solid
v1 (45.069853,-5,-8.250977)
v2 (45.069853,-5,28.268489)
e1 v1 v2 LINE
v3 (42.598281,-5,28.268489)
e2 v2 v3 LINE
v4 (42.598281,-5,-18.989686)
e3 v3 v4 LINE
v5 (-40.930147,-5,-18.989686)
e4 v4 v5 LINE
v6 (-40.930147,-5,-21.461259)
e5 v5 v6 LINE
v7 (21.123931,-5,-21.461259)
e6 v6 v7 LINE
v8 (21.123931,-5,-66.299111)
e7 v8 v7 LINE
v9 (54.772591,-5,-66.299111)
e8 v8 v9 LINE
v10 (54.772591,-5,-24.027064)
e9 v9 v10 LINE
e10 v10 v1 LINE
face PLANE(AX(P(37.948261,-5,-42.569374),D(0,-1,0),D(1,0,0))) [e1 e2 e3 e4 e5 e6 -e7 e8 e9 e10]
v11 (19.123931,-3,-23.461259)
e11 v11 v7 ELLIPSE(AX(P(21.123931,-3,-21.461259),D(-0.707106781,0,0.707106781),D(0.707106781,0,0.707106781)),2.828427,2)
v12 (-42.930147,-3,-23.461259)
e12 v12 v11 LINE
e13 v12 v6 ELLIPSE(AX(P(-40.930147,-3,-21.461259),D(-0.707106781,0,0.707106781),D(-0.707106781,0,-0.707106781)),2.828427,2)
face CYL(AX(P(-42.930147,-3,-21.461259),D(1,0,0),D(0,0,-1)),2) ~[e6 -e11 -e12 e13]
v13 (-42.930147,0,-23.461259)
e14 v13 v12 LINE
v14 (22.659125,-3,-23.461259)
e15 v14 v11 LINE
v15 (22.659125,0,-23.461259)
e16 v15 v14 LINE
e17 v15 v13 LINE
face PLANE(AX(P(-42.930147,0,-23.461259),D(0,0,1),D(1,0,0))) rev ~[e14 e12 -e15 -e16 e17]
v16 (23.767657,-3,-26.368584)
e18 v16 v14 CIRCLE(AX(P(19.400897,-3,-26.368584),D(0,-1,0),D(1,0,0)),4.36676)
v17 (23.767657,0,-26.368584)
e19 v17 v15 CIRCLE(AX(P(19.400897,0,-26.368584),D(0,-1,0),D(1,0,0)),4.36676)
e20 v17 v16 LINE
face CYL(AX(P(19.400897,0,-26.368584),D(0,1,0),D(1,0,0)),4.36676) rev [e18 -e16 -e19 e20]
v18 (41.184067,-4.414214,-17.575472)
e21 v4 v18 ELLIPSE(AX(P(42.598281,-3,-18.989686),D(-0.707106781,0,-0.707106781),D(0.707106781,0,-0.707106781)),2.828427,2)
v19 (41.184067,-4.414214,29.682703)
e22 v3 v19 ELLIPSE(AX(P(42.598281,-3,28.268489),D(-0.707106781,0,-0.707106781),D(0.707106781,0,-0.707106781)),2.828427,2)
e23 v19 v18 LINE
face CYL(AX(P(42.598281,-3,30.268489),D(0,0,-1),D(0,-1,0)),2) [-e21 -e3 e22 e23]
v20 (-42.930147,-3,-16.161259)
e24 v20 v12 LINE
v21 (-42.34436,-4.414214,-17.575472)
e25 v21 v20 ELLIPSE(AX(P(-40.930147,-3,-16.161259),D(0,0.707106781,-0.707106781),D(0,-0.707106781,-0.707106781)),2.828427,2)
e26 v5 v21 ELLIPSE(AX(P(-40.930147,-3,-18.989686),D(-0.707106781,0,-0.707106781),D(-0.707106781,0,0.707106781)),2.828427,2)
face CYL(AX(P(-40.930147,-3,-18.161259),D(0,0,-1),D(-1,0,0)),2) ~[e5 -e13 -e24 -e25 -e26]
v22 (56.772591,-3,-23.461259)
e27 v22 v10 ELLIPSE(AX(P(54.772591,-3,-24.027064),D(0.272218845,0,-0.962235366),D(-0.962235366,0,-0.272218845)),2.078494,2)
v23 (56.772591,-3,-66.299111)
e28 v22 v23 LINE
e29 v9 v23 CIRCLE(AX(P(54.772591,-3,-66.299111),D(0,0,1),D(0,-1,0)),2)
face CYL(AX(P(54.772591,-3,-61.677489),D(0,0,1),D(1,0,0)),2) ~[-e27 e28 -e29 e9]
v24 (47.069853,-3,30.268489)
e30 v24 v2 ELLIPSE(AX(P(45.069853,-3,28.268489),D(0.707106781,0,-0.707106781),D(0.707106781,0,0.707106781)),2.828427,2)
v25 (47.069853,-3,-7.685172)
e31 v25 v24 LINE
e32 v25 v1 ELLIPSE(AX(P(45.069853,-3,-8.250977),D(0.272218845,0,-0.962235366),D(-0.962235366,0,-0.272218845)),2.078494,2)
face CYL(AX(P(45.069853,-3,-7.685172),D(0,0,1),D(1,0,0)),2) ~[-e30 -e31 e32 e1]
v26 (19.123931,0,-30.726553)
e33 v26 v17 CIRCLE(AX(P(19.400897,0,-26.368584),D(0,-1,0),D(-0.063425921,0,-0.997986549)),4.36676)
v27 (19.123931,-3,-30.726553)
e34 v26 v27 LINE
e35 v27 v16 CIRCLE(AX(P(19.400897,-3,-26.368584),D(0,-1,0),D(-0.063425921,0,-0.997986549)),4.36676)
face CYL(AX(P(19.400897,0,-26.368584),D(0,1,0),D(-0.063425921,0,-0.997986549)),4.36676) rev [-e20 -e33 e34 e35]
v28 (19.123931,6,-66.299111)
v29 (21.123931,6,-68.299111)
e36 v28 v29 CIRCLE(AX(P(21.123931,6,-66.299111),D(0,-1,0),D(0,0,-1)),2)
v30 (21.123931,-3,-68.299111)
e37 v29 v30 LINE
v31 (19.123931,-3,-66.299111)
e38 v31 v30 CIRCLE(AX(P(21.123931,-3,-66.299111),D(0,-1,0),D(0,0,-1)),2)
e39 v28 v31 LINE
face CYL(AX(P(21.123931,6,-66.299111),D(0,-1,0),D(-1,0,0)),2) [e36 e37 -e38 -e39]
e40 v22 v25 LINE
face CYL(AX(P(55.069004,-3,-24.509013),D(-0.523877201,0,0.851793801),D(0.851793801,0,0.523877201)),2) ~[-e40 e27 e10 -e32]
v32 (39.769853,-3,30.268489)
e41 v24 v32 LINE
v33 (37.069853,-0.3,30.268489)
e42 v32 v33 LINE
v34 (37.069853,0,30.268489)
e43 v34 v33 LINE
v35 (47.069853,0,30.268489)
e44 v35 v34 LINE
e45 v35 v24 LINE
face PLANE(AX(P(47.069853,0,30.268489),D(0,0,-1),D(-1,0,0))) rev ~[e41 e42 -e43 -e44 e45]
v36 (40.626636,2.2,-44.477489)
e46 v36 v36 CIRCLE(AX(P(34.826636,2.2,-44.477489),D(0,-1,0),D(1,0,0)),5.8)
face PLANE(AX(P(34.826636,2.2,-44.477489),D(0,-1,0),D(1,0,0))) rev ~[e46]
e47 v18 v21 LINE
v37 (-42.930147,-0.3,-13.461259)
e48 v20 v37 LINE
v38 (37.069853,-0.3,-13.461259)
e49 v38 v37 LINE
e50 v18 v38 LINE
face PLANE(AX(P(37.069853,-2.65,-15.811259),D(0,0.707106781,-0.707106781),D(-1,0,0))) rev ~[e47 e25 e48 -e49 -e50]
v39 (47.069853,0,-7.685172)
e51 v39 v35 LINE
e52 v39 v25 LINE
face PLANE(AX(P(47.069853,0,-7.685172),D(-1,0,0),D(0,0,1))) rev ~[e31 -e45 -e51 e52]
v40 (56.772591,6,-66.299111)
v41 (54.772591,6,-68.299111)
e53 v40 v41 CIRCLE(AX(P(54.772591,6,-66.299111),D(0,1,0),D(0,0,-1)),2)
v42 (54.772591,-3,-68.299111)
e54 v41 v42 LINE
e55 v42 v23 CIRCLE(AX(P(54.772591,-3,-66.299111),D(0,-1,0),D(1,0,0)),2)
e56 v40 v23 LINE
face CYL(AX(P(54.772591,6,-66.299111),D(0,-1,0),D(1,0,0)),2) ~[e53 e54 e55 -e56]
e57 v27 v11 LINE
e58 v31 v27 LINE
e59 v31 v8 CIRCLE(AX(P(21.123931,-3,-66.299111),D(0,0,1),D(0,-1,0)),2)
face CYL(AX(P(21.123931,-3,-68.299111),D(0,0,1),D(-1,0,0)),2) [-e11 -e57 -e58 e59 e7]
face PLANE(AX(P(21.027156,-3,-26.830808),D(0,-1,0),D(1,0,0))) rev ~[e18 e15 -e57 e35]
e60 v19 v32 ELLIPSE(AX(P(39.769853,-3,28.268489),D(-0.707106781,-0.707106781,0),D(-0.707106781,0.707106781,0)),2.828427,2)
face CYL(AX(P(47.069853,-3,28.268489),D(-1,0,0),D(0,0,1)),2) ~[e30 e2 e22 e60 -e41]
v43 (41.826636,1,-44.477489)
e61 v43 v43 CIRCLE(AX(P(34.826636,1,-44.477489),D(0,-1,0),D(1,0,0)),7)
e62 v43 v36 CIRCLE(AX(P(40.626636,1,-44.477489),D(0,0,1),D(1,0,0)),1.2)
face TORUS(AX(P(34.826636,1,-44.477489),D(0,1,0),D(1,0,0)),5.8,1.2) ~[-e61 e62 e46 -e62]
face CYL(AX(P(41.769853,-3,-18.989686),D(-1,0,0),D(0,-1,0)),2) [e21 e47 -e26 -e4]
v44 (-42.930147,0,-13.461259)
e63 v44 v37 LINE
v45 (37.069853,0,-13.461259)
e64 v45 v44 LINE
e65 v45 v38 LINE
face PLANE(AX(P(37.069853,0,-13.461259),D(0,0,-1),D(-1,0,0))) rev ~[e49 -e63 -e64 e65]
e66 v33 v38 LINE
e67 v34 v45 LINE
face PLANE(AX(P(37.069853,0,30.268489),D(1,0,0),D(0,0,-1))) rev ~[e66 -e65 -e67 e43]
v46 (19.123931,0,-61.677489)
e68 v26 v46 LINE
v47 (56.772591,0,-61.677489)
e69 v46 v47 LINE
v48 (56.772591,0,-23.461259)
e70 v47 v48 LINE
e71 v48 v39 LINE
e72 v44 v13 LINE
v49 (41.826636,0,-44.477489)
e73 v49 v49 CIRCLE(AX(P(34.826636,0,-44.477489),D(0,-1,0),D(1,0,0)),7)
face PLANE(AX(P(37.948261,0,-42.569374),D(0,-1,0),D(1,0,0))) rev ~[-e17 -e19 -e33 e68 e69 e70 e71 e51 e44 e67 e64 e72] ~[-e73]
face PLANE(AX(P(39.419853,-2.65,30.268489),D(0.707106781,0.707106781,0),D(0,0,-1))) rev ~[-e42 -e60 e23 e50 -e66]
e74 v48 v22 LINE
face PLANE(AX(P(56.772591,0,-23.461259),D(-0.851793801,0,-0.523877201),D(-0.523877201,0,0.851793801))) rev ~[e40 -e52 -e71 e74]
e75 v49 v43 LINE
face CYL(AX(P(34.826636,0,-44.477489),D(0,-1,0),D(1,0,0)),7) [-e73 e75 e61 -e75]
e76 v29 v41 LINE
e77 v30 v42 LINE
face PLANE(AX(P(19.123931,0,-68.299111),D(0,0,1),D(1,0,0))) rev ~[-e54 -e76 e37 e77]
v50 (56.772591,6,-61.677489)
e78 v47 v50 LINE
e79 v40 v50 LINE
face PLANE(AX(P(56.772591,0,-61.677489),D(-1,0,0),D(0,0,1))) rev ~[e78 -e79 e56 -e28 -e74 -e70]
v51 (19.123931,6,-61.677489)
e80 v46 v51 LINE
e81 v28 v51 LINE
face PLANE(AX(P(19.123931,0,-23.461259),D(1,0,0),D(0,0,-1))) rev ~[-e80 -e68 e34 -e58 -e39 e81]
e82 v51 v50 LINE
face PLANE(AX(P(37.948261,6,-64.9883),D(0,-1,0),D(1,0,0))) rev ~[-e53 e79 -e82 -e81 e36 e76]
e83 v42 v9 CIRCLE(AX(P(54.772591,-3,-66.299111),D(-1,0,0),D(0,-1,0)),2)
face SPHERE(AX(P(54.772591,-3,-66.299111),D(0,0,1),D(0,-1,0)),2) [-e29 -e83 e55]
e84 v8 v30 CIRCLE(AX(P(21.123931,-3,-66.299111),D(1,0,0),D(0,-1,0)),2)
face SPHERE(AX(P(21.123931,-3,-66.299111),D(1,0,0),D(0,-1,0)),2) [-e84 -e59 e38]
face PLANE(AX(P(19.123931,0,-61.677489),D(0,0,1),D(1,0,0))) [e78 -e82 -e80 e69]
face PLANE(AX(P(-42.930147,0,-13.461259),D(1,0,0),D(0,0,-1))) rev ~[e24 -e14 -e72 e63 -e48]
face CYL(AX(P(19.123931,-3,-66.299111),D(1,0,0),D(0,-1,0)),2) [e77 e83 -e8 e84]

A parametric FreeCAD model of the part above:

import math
import FreeCAD as App
import Part
import Sketcher
Q = App.Units.Quantity


def edges_at(feature, points):
    """Names of the edges that pass closest to the given points."""
    edges = feature.Shape.Edges
    near = lambda p: min(range(len(edges)), key=lambda i: edges[i].distToShape(Part.Vertex(*p))[0])
    return sorted({f"Edge{near(p) + 1}" for p in points})

doc = App.newDocument("Part")
body = doc.addObject("PartDesign::Body", "Body")

sketch1 = body.newObject("Sketcher::SketchObject", "Sketch")
sketch1.AttachmentSupport = (doc.getObject("XZ_Plane"), [""])
sketch1.MapMode = "FlatFace"
sketch1.addGeometry(Part.LineSegment(App.Vector(19, -62, 0), App.Vector(19, -68, 0)), False)
sketch1.addGeometry(Part.LineSegment(App.Vector(19, -68, 0), App.Vector(57, -68, 0)), False)
sketch1.addGeometry(Part.LineSegment(App.Vector(57, -68, 0), App.Vector(57, -62, 0)), False)
sketch1.addGeometry(Part.LineSegment(App.Vector(57, -62, 0), App.Vector(19, -62, 0)), False)
sketch1.addConstraint(Sketcher.Constraint("Coincident", 0, 2, 1, 1))
sketch1.addConstraint(Sketcher.Constraint("Coincident", 1, 2, 2, 1))
sketch1.addConstraint(Sketcher.Constraint("Coincident", 2, 2, 3, 1))
sketch1.addConstraint(Sketcher.Constraint("Coincident", 3, 2, 0, 1))
sketch1.addConstraint(Sketcher.Constraint("Vertical", 0))
sketch1.addConstraint(Sketcher.Constraint("Horizontal", 1))
sketch1.addConstraint(Sketcher.Constraint("Vertical", 2))
sketch1.addConstraint(Sketcher.Constraint("Horizontal", 3))
sketch1.addConstraint(Sketcher.Constraint("DistanceX", 1, 1, 1, 2, Q("37.648661 mm")))
sketch1.addConstraint(Sketcher.Constraint("DistanceY", 0, 2, 0, 1, Q("6.621622 mm")))
sketch1.addConstraint(Sketcher.Constraint("DistanceX", -1, 1, 0, 2, Q("19.123931 mm")))
sketch1.addConstraint(Sketcher.Constraint("DistanceY", 0, 2, -1, 1, Q("68.299111 mm")))
pad1 = body.newObject("PartDesign::Pad", "Pad")
pad1.Profile = sketch1
pad1.Type = "TwoLengths"
pad1.Length = 6
pad1.Length2 = 5
pad1.Reversed = True

sketch2 = body.newObject("Sketcher::SketchObject", "Sketch001")
sketch2.AttachmentSupport = (doc.getObject("XZ_Plane"), [""])
sketch2.MapMode = "FlatFace"
sketch2.addGeometry(Part.LineSegment(App.Vector(19, -23, 0), App.Vector(19, -62, 0)), False)
sketch2.addGeometry(Part.LineSegment(App.Vector(19, -62, 0), App.Vector(57, -62, 0)), False)
sketch2.addGeometry(Part.LineSegment(App.Vector(57, -62, 0), App.Vector(57, -23, 0)), False)
sketch2.addGeometry(Part.LineSegment(App.Vector(57, -23, 0), App.Vector(47, -8, 0)), False)
sketch2.addGeometry(Part.LineSegment(App.Vector(47, -8, 0), App.Vector(47, 30, 0)), False)
sketch2.addGeometry(Part.LineSegment(App.Vector(47, 30, 0), App.Vector(37, 30, 0)), False)
sketch2.addGeometry(Part.LineSegment(App.Vector(37, 30, 0), App.Vector(37, -13, 0)), False)
sketch2.addGeometry(Part.LineSegment(App.Vector(37, -13, 0), App.Vector(-43, -13, 0)), False)
sketch2.addGeometry(Part.LineSegment(App.Vector(-43, -13, 0), App.Vector(-43, -23, 0)), False)
sketch2.addGeometry(Part.LineSegment(App.Vector(-43, -23, 0), App.Vector(19, -23, 0)), False)
sketch2.addConstraint(Sketcher.Constraint("Coincident", 0, 2, 1, 1))
sketch2.addConstraint(Sketcher.Constraint("Coincident", 1, 2, 2, 1))
sketch2.addConstraint(Sketcher.Constraint("Coincident", 2, 2, 3, 1))
sketch2.addConstraint(Sketcher.Constraint("Coincident", 3, 2, 4, 1))
sketch2.addConstraint(Sketcher.Constraint("Coincident", 4, 2, 5, 1))
sketch2.addConstraint(Sketcher.Constraint("Coincident", 5, 2, 6, 1))
sketch2.addConstraint(Sketcher.Constraint("Coincident", 6, 2, 7, 1))
sketch2.addConstraint(Sketcher.Constraint("Coincident", 7, 2, 8, 1))
sketch2.addConstraint(Sketcher.Constraint("Coincident", 8, 2, 9, 1))
sketch2.addConstraint(Sketcher.Constraint("Coincident", 9, 2, 0, 1))
sketch2.addConstraint(Sketcher.Constraint("Vertical", 0))
sketch2.addConstraint(Sketcher.Constraint("Horizontal", 1))
sketch2.addConstraint(Sketcher.Constraint("Vertical", 2))
sketch2.addConstraint(Sketcher.Constraint("Vertical", 4))
sketch2.addConstraint(Sketcher.Constraint("Horizontal", 5))
sketch2.addConstraint(Sketcher.Constraint("Vertical", 6))
sketch2.addConstraint(Sketcher.Constraint("Horizontal", 7))
sketch2.addConstraint(Sketcher.Constraint("Vertical", 8))
sketch2.addConstraint(Sketcher.Constraint("Horizontal", 9))
sketch2.addConstraint(Sketcher.Constraint("Horizontal", 2, 2, 8, 2))
sketch2.addConstraint(Sketcher.Constraint("Equal", 5, 8))
sketch2.addConstraint(Sketcher.Constraint("DistanceX", 5, 2, 5, 1, Q("10 mm")))
sketch2.addConstraint(Sketcher.Constraint("DistanceX", 7, 2, 7, 1, Q("80 mm")))
sketch2.addConstraint(Sketcher.Constraint("DistanceX", 1, 1, 1, 2, Q("37.648661 mm")))
sketch2.addConstraint(Sketcher.Constraint("DistanceY", 0, 2, 0, 1, Q("38.216231 mm")))
sketch2.addConstraint(Sketcher.Constraint("DistanceY", 4, 1, 4, 2, Q("37.953661 mm")))
sketch2.addConstraint(Sketcher.Constraint("DistanceX", 9, 1, 9, 2, Q("62.054077 mm")))
sketch2.addConstraint(Sketcher.Constraint("DistanceY", 6, 2, 6, 1, Q("43.729748 mm")))
sketch2.addConstraint(Sketcher.Constraint("DistanceX", -1, 1, 0, 2, Q("19.123931 mm")))
sketch2.addConstraint(Sketcher.Constraint("DistanceY", 0, 2, -1, 1, Q("61.677489 mm")))
pad2 = body.newObject("PartDesign::Pad", "Pad001")
pad2.Profile = sketch2
pad2.Length = 5

sketch3 = body.newObject("Sketcher::SketchObject", "Sketch002")
sketch3.AttachmentSupport = (doc.getObject("XZ_Plane"), [""])
sketch3.MapMode = "FlatFace"
sketch3.addGeometry(Part.Circle(App.Vector(35, -44, 0), App.Vector(0, 0, 1), 7), False)
sketch3.addConstraint(Sketcher.Constraint("Diameter", 0, Q("14 mm")))
sketch3.addConstraint(Sketcher.Constraint("DistanceY", 0, 3, -1, 1, Q("44.477489 mm")))
sketch3.addConstraint(Sketcher.Constraint("DistanceX", -1, 1, 0, 3, Q("34.826636 mm")))
pad3 = body.newObject("PartDesign::Pad", "Pad002")
pad3.Profile = sketch3
pad3.Length = 2.2
pad3.Reversed = True
doc.recompute()

chamfer = body.newObject("PartDesign::Chamfer", "Chamfer")
chamfer.Base = (pad3, edges_at(pad3, [(-2.93, -5, -13.461), (37.07, -5, 8.404)]))
chamfer.Size = 4.7
doc.recompute()

fillet = body.newObject("PartDesign::Fillet", "Fillet")
fillet.Base = (chamfer, edges_at(chamfer, [(27.827, 2.2, -44.477)]))
fillet.Radius = 1.2
doc.recompute()

fillet2 = body.newObject("PartDesign::Fillet", "Fillet001")
fillet2.Base = (fillet, edges_at(fillet, [
    (51.921, -5, -15.573),
    (47.07, -5, 11.292),
    (56.773, -5, -42.569),
    (37.948, -5, -68.299),
    (44.42, -5, 30.268),
    (41.77, -5, 6.054),
    (-0.58, -5, -18.161),
    (-42.93, -5, -20.811),
    (-11.903, -5, -23.461),
    (19.124, -5, -45.88),
    (19.124, 0.5, -68.299),
    (56.773, 0.5, -68.299),
]))
fillet2.Radius = 2

sketch4 = body.newObject("Sketcher::SketchObject", "Sketch003")
sketch4.AttachmentSupport = (doc.getObject("XZ_Plane"), [""])
sketch4.MapMode = "FlatFace"
sketch4.addGeometry(Part.ArcOfCircle(Part.Circle(App.Vector(19.4, -26.4, 0), App.Vector(0, 0, 1), 4.4), math.radians(-94), math.radians(0)), False)
sketch4.addGeometry(Part.ArcOfCircle(Part.Circle(App.Vector(19.4, -26.4, 0), App.Vector(0, 0, 1), 4.4), math.radians(0), math.radians(42)), False)
sketch4.addGeometry(Part.LineSegment(App.Vector(22.7, -23.5, 0), App.Vector(19.1, -23.5, 0)), False)
sketch4.addGeometry(Part.LineSegment(App.Vector(19.1, -23.5, 0), App.Vector(19.1, -30.7, 0)), False)
sketch4.addConstraint(Sketcher.Constraint("Tangent", 0, 2, 1, 1))
sketch4.addConstraint(Sketcher.Constraint("Coincident", 1, 2, 2, 1))
sketch4.addConstraint(Sketcher.Constraint("Coincident", 2, 2, 3, 1))
sketch4.addConstraint(Sketcher.Constraint("Coincident", 3, 2, 0, 1))
sketch4.addConstraint(Sketcher.Constraint("Horizontal", 2))
sketch4.addConstraint(Sketcher.Constraint("Vertical", 3))
sketch4.addConstraint(Sketcher.Constraint("Equal", 0, 1))
sketch4.addConstraint(Sketcher.Constraint("Horizontal", 1, 3, 0, 2))
sketch4.addConstraint(Sketcher.Constraint("Radius", 0, Q("4.36676 mm")))
sketch4.addConstraint(Sketcher.Constraint("DistanceX", 2, 2, 2, 1, Q("3.535194 mm")))
sketch4.addConstraint(Sketcher.Constraint("DistanceY", 3, 2, 3, 1, Q("7.265294 mm")))
sketch4.addConstraint(Sketcher.Constraint("DistanceY", 1, 2, -1, 1, Q("23.461259 mm")))
sketch4.addConstraint(Sketcher.Constraint("DistanceX", -1, 1, 2, 2, Q("19.123931 mm")))
pocket1 = body.newObject("PartDesign::Pocket", "Pocket")
pocket1.Profile = sketch4
pocket1.Type = "TwoLengths"
pocket1.Length = 2
pocket1.Length2 = 3

doc.recompute()
